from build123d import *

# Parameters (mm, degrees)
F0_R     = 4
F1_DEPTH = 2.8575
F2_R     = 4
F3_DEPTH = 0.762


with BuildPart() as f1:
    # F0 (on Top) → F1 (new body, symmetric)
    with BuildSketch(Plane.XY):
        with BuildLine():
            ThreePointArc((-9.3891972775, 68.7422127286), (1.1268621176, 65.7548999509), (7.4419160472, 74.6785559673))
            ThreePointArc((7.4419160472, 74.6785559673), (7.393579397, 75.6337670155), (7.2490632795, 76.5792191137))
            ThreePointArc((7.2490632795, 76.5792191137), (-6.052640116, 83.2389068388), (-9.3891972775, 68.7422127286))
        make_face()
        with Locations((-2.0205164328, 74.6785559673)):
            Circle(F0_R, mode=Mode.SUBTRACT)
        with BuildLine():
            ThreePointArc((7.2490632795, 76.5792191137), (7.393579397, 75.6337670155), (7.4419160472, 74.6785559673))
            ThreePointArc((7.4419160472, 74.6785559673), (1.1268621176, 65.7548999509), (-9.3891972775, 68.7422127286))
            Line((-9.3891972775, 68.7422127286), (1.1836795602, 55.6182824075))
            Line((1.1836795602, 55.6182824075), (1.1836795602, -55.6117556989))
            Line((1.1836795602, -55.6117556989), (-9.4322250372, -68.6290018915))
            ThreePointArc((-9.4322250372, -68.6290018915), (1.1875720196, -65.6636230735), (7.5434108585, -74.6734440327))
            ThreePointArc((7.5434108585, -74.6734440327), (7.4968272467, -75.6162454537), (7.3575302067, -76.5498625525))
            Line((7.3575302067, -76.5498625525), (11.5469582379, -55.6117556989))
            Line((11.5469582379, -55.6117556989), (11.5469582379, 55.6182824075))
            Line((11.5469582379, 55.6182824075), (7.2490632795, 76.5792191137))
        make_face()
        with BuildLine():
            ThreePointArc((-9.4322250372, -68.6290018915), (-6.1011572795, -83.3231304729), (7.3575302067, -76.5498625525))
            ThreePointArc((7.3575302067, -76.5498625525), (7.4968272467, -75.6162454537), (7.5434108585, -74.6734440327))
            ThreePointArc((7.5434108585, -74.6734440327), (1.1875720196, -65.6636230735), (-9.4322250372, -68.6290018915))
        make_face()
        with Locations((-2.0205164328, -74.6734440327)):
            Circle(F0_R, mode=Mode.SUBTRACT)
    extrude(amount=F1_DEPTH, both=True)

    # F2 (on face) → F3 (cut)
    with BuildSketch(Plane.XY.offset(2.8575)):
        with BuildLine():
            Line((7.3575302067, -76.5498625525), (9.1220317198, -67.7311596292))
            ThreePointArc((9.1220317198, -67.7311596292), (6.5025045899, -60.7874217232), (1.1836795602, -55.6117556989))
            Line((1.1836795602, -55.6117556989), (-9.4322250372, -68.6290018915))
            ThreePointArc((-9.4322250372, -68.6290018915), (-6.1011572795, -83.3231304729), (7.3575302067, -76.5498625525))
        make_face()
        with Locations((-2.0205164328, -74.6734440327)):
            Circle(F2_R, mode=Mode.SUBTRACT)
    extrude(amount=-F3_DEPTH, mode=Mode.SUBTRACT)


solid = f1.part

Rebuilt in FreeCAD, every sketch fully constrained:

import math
import FreeCAD as App
import Part
import Sketcher
from FreeCAD import Vector

doc = App.newDocument("Part")
body = doc.addObject("PartDesign::Body", "Body")

# Sketch on XY plane
sketch1 = doc.addObject("Sketcher::SketchObject", "Sketch")
body.addObject(sketch1)
sketch1.AttachmentSupport = (doc.XY_Plane, [""])
sketch1.MapMode = "FlatFace"
sketch1.addGeometry(Part.ArcOfCircle(Part.Circle(Vector(-2, 74.7, 0), Vector(0, 0, 1), 9.5), math.radians(12), math.radians(219)), False)
sketch1.addGeometry(Part.LineSegment(Vector(-9.4, 68.7, 0), Vector(1.2, 55.6, 0)), False)
sketch1.addGeometry(Part.LineSegment(Vector(1.2, 55.6, 0), Vector(1.2, -55.6, 0)), False)
sketch1.addGeometry(Part.LineSegment(Vector(1.2, -55.6, 0), Vector(-9.4, -68.6, 0)), False)
sketch1.addGeometry(Part.ArcOfCircle(Part.Circle(Vector(-2, -74.7, 0), Vector(0, 0, 1), 9.6), math.radians(141), math.radians(349)), False)
sketch1.addGeometry(Part.LineSegment(Vector(7.4, -76.5, 0), Vector(11.5, -55.6, 0)), False)
sketch1.addGeometry(Part.LineSegment(Vector(11.5, -55.6, 0), Vector(11.5, 55.6, 0)), False)
sketch1.addGeometry(Part.LineSegment(Vector(11.5, 55.6, 0), Vector(7.2, 76.6, 0)), False)
sketch1.addGeometry(Part.Circle(Vector(-2, -74.7, 0), Vector(0, 0, 1), 4), False)
sketch1.addGeometry(Part.Circle(Vector(-2, 74.7, 0), Vector(0, 0, 1), 4), False)
sketch1.addConstraint(Sketcher.Constraint("Tangent", 0, 2, 1, 1))
sketch1.addConstraint(Sketcher.Constraint("Coincident", 1, 2, 2, 1))
sketch1.addConstraint(Sketcher.Constraint("Coincident", 2, 2, 3, 1))
sketch1.addConstraint(Sketcher.Constraint("Tangent", 3, 2, 4, 1))
sketch1.addConstraint(Sketcher.Constraint("Tangent", 4, 2, 5, 1))
sketch1.addConstraint(Sketcher.Constraint("Coincident", 5, 2, 6, 1))
sketch1.addConstraint(Sketcher.Constraint("Coincident", 6, 2, 7, 1))
sketch1.addConstraint(Sketcher.Constraint("Tangent", 7, 2, 0, 1))
sketch1.addConstraint(Sketcher.Constraint("Vertical", 2))
sketch1.addConstraint(Sketcher.Constraint("Vertical", 6))
sketch1.addConstraint(Sketcher.Constraint("Coincident", 8, 3, 4, 3))
sketch1.addConstraint(Sketcher.Constraint("Coincident", 9, 3, 0, 3))
sketch1.addConstraint(Sketcher.Constraint("Equal", 8, 9))
sketch1.addConstraint(Sketcher.Constraint("Horizontal", 2, 2, 5, 2))
sketch1.addConstraint(Sketcher.Constraint("Horizontal", 1, 2, 6, 2))
sketch1.addConstraint(Sketcher.Constraint("Vertical", 0, 3, 4, 3))
sketch1.addConstraint(Sketcher.Constraint("Diameter", 8, 8.0))
sketch1.addConstraint(Sketcher.Constraint("DistanceY", 3, 2, -1, 1, 68.629002))
sketch1.addConstraint(Sketcher.Constraint("Radius", 0, 9.462432))
sketch1.addConstraint(Sketcher.Constraint("Radius", 4, 9.563927))
sketch1.addConstraint(Sketcher.Constraint("DistanceY", 4, 3, 0, 3, 149.352))
sketch1.addConstraint(Sketcher.Constraint("DistanceY", 2, 2, 2, 1, 111.230038))
sketch1.addConstraint(Sketcher.Constraint("Distance", 1, 16.85299))
sketch1.addConstraint(Sketcher.Constraint("DistanceX", -1, 1, 1, 2, 1.18368))
sketch1.addConstraint(Sketcher.Constraint("DistanceX", -1, 1, 4, 2, 7.35753))
sketch1.addConstraint(Sketcher.Constraint("DistanceX", -1, 1, 5, 2, 11.546958))
pad1 = doc.addObject("PartDesign::Pad", "Pad")
body.addObject(pad1)
pad1.Profile = sketch1
pad1.Length = 5.715
pad1.Midplane = True

# Sketch on XY plane
sketch2 = doc.addObject("Sketcher::SketchObject", "Sketch001")
body.addObject(sketch2)
sketch2.AttachmentSupport = (doc.XY_Plane, [""])
sketch2.MapMode = "FlatFace"
sketch2.AttachmentOffset = App.Placement(Vector(0, 0, 2.8575), App.Rotation())
sketch2.addGeometry(Part.LineSegment(Vector(7.4, -76.5, 0), Vector(9.1, -67.7, 0)), False)
sketch2.addGeometry(Part.ArcOfCircle(Part.Circle(Vector(-7.8, -70.1, 0), Vector(0, 0, 1), 17.1), math.radians(8), math.radians(58)), False)
sketch2.addGeometry(Part.LineSegment(Vector(1.2, -55.6, 0), Vector(-9.4, -68.6, 0)), False)
sketch2.addGeometry(Part.ArcOfCircle(Part.Circle(Vector(-2, -74.7, 0), Vector(0, 0, 1), 9.6), math.radians(141), math.radians(349)), False)
sketch2.addGeometry(Part.Circle(Vector(-2, -74.7, 0), Vector(0, 0, 1), 4), False)
sketch2.addConstraint(Sketcher.Constraint("Coincident", 0, 2, 1, 1))
sketch2.addConstraint(Sketcher.Constraint("Coincident", 1, 2, 2, 1))
sketch2.addConstraint(Sketcher.Constraint("Tangent", 2, 2, 3, 1))
sketch2.addConstraint(Sketcher.Constraint("Tangent", 3, 2, 0, 1))
sketch2.addConstraint(Sketcher.Constraint("Coincident", 4, 3, 3, 3))
sketch2.addConstraint(Sketcher.Constraint("Diameter", 4, 8.0))
sketch2.addConstraint(Sketcher.Constraint("DistanceY", 2, 2, -1, 1, 68.629002))
sketch2.addConstraint(Sketcher.Constraint("Radius", 1, 17.068702))
sketch2.addConstraint(Sketcher.Constraint("Radius", 3, 9.563927))
sketch2.addConstraint(Sketcher.Constraint("DistanceX", 3, 2, 0, 2, 1.764502))
sketch2.addConstraint(Sketcher.Constraint("DistanceX", -1, 1, 0, 2, 9.122032))
sketch2.addConstraint(Sketcher.Constraint("DistanceY", 0, 2, -1, 1, 67.73116))
sketch2.addConstraint(Sketcher.Constraint("DistanceX", -1, 1, 1, 2, 1.18368))
sketch2.addConstraint(Sketcher.Constraint("DistanceY", 3, 3, 1, 3, 4.53353))
pocket1 = doc.addObject("PartDesign::Pocket", "Pocket")
body.addObject(pocket1)
pocket1.Profile = sketch2
pocket1.Length = 0.762

doc.recompute()
